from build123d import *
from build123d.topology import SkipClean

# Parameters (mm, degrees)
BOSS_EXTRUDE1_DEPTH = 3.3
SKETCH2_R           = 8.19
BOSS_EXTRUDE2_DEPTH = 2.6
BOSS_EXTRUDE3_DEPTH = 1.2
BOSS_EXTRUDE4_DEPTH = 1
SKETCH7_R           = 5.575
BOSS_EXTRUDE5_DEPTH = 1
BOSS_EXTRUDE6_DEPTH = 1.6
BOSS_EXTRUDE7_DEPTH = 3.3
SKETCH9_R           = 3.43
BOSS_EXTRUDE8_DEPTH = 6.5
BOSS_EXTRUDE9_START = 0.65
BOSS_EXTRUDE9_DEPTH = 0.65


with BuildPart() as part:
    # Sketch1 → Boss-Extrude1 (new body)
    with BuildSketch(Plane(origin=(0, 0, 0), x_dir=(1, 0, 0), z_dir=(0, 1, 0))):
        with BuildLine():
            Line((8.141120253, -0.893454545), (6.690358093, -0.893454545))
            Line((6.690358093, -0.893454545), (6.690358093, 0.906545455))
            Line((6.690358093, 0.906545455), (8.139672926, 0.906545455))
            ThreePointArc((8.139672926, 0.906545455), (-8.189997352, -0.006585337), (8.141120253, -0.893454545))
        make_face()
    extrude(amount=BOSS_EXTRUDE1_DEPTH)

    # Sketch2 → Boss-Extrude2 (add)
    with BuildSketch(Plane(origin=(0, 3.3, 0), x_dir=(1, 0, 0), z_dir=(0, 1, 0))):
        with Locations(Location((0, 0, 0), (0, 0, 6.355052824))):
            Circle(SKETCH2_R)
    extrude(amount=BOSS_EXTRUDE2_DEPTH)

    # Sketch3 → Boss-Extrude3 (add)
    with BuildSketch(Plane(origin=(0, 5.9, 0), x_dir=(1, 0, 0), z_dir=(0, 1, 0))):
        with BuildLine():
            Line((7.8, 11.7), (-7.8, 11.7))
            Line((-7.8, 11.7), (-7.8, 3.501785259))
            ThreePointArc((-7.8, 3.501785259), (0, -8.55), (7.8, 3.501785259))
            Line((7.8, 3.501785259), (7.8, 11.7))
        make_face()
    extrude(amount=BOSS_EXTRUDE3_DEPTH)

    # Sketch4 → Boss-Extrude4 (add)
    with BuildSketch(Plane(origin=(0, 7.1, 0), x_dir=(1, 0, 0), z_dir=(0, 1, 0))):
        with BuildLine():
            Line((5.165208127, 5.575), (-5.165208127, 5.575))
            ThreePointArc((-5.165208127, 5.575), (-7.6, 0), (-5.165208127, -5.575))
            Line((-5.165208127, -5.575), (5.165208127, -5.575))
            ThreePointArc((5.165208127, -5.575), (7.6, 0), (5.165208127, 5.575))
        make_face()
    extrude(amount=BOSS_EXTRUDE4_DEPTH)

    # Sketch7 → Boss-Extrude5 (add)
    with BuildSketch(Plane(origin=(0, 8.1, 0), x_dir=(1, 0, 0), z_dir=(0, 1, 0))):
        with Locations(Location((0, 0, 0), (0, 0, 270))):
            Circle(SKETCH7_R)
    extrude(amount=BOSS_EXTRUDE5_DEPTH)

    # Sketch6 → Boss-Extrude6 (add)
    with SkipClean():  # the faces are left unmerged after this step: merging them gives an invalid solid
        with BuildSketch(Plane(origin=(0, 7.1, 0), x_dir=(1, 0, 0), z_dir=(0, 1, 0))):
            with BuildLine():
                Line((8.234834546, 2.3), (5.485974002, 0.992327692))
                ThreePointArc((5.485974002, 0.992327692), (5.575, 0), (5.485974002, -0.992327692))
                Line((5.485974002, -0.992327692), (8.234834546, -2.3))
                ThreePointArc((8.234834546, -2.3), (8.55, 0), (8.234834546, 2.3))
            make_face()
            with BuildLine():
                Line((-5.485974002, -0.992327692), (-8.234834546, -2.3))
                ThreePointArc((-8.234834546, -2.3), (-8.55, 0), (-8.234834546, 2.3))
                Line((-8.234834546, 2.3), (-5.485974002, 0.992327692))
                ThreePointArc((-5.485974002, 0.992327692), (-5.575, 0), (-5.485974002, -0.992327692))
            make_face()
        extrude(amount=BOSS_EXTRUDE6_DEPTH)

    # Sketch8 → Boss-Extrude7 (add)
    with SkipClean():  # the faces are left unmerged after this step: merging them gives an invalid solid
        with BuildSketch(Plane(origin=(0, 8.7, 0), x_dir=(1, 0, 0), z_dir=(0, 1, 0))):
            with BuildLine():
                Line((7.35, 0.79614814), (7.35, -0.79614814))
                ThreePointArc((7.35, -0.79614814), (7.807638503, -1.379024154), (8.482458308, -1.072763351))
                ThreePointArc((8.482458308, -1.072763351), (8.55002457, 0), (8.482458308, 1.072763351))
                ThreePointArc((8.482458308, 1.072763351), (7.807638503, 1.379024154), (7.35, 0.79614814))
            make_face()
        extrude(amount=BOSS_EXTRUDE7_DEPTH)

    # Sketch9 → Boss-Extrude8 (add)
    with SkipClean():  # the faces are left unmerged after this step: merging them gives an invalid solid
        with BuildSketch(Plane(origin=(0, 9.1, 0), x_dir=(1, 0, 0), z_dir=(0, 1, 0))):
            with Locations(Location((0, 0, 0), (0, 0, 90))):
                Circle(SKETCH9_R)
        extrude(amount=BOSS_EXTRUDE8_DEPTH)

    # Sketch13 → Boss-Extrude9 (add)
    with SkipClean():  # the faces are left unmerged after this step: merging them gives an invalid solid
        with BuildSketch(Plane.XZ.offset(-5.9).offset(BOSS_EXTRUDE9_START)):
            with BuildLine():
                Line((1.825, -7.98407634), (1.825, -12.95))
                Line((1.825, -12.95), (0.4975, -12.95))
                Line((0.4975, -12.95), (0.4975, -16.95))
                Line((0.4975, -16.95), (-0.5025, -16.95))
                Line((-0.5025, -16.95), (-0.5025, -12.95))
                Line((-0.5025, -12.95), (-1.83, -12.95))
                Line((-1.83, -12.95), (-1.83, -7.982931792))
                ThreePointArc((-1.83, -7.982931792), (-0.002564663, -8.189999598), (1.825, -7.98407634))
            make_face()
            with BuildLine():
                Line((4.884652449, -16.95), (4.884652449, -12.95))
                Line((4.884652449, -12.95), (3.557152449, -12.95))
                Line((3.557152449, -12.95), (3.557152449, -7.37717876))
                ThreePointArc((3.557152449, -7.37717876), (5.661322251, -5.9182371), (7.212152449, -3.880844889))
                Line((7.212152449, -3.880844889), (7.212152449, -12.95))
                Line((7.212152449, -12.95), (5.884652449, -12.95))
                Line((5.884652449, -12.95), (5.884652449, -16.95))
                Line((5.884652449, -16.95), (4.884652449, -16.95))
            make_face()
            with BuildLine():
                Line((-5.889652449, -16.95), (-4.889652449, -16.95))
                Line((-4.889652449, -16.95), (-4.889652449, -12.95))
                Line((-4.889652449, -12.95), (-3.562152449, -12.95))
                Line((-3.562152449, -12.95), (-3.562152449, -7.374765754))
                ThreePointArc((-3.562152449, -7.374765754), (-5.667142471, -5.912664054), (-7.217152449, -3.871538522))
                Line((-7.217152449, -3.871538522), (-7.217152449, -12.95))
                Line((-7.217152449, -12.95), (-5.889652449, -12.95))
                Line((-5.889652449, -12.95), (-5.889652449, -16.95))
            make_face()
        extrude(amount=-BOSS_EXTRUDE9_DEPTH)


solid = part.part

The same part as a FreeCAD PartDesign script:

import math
import FreeCAD as App
import Part
import Sketcher

doc = App.newDocument("Part")
body = doc.addObject("PartDesign::Body", "Body")

# Sketch on XZ plane
sketch1 = body.newObject("Sketcher::SketchObject", "Sketch")
sketch1.AttachmentSupport = (doc.getObject("XZ_Plane"), [""])
sketch1.MapMode = "FlatFace"
sketch1.addGeometry([
    Part.LineSegment(App.Vector(8.1, 0.9, 0), App.Vector(6.7, 0.9, 0)),
    Part.LineSegment(App.Vector(6.7, 0.9, 0), App.Vector(6.7, -0.9, 0)),
    Part.LineSegment(App.Vector(6.7, -0.9, 0), App.Vector(8.1, -0.9, 0)),
    Part.ArcOfCircle(Part.Circle(App.Vector(0, 0, 0), App.Vector(0, 0, 1), 8.2), math.radians(6), math.radians(354)),
], False)
sketch1.addConstraint([
    Sketcher.Constraint("Coincident", 0, 2, 1, 1),
    Sketcher.Constraint("Coincident", 1, 2, 2, 1),
    Sketcher.Constraint("Coincident", 2, 2, 3, 2),
    Sketcher.Constraint("Coincident", 3, 1, 0, 1),
    Sketcher.Constraint("Horizontal", 0),
    Sketcher.Constraint("Vertical", 1),
    Sketcher.Constraint("Horizontal", 2),
    Sketcher.Constraint("Coincident", 3, 3, -1, 1),
    Sketcher.Constraint("Radius", 3, 8.19),
    Sketcher.Constraint("DistanceY", 1, 2, 1, 1, 1.8),
    Sketcher.Constraint("DistanceX", 0, 2, 0, 1, 1.450762),
    Sketcher.Constraint("DistanceX", 2, 1, 2, 2, 1.449315),
])
pad1 = body.newObject("PartDesign::Pad", "Pad")
pad1.Profile = sketch1
pad1.Length = 3.3
pad1.Reversed = True

# Sketch on XZ plane
sketch2 = body.newObject("Sketcher::SketchObject", "Sketch001")
sketch2.AttachmentSupport = (doc.getObject("XZ_Plane"), [""])
sketch2.MapMode = "FlatFace"
sketch2.AttachmentOffset = App.Placement(App.Vector(0, 0, -3.3), App.Rotation())
sketch2.addGeometry(Part.Circle(App.Vector(0, 0, 0), App.Vector(0, 0, 1), 8), False)
sketch2.addConstraint([
    Sketcher.Constraint("Coincident", 0, 3, -1, 1),
    Sketcher.Constraint("Diameter", 0, 16.38),
])
pad2 = body.newObject("PartDesign::Pad", "Pad001")
pad2.Profile = sketch2
pad2.Length = 2.6
pad2.Reversed = True

# Sketch on XZ plane
sketch3 = body.newObject("Sketcher::SketchObject", "Sketch002")
sketch3.AttachmentSupport = (doc.getObject("XZ_Plane"), [""])
sketch3.MapMode = "FlatFace"
sketch3.AttachmentOffset = App.Placement(App.Vector(0, 0, -5.9), App.Rotation())
sketch3.addGeometry([
    Part.LineSegment(App.Vector(8, -12, 0), App.Vector(-8, -12, 0)),
    Part.LineSegment(App.Vector(-8, -12, 0), App.Vector(-8, -4, 0)),
    Part.ArcOfCircle(Part.Circle(App.Vector(0, 0, 0), App.Vector(0, 0, 1), 9), math.radians(-24), math.radians(204)),
    Part.LineSegment(App.Vector(8, -4, 0), App.Vector(8, -12, 0)),
], False)
sketch3.addConstraint([
    Sketcher.Constraint("Coincident", 0, 2, 1, 1),
    Sketcher.Constraint("Coincident", 1, 2, 2, 2),
    Sketcher.Constraint("Coincident", 2, 1, 3, 1),
    Sketcher.Constraint("Coincident", 3, 2, 0, 1),
    Sketcher.Constraint("Horizontal", 0),
    Sketcher.Constraint("Vertical", 1),
    Sketcher.Constraint("Vertical", 3),
    Sketcher.Constraint("Coincident", 2, 3, -1, 1),
    Sketcher.Constraint("Horizontal", 1, 2, 2, 1),
    Sketcher.Constraint("Radius", 2, 8.55),
    Sketcher.Constraint("DistanceX", 0, 2, 0, 1, 15.6),
    Sketcher.Constraint("DistanceY", 0, 2, -1, 1, 11.7),
])
pad3 = body.newObject("PartDesign::Pad", "Pad002")
pad3.Profile = sketch3
pad3.Length = 1.2
pad3.Reversed = True

# Sketch on XZ plane
sketch4 = body.newObject("Sketcher::SketchObject", "Sketch003")
sketch4.AttachmentSupport = (doc.getObject("XZ_Plane"), [""])
sketch4.MapMode = "FlatFace"
sketch4.AttachmentOffset = App.Placement(App.Vector(0, 0, -7.1), App.Rotation())
sketch4.addGeometry([
    Part.LineSegment(App.Vector(5, -6, 0), App.Vector(-5, -6, 0)),
    Part.ArcOfCircle(Part.Circle(App.Vector(0, 0, 0), App.Vector(0, 0, 1), 8), math.radians(133), math.radians(227)),
    Part.LineSegment(App.Vector(-5, 6, 0), App.Vector(5, 6, 0)),
    Part.ArcOfCircle(Part.Circle(App.Vector(0, 0, 0), App.Vector(0, 0, 1), 8), math.radians(-47), math.radians(47)),
], False)
sketch4.addConstraint([
    Sketcher.Constraint("Coincident", 0, 2, 1, 2),
    Sketcher.Constraint("Coincident", 1, 1, 2, 1),
    Sketcher.Constraint("Coincident", 2, 2, 3, 2),
    Sketcher.Constraint("Coincident", 3, 1, 0, 1),
    Sketcher.Constraint("Horizontal", 0),
    Sketcher.Constraint("Horizontal", 2),
    Sketcher.Constraint("Coincident", 1, 3, -1, 1),
    Sketcher.Constraint("Coincident", 3, 3, -1, 1),
    Sketcher.Constraint("Equal", 1, 3),
    Sketcher.Constraint("Vertical", 0, 2, 1, 1),
    Sketcher.Constraint("Radius", 1, 7.6),
    Sketcher.Constraint("DistanceY", 0, 2, 1, 1, 11.15),
])
pad4 = body.newObject("PartDesign::Pad", "Pad003")
pad4.Profile = sketch4
pad4.Length = 1
pad4.Reversed = True

# Sketch on XZ plane
sketch5 = body.newObject("Sketcher::SketchObject", "Sketch004")
sketch5.AttachmentSupport = (doc.getObject("XZ_Plane"), [""])
sketch5.MapMode = "FlatFace"
sketch5.AttachmentOffset = App.Placement(App.Vector(0, 0, -8.1), App.Rotation())
sketch5.addGeometry(Part.Circle(App.Vector(0, 0, 0), App.Vector(0, 0, 1), 6), False)
sketch5.addConstraint([
    Sketcher.Constraint("Coincident", 0, 3, -1, 1),
    Sketcher.Constraint("Diameter", 0, 11.15),
])
pad5 = body.newObject("PartDesign::Pad", "Pad004")
pad5.Profile = sketch5
pad5.Length = 1
pad5.Reversed = True

# Sketch on XZ plane
sketch6 = body.newObject("Sketcher::SketchObject", "Sketch005")
sketch6.AttachmentSupport = (doc.getObject("XZ_Plane"), [""])
sketch6.MapMode = "FlatFace"
sketch6.AttachmentOffset = App.Placement(App.Vector(0, 0, -7.1), App.Rotation())
sketch6.addGeometry([
    Part.LineSegment(App.Vector(8.2, -2.3, 0), App.Vector(5.5, -1, 0)),  # 0
    Part.ArcOfCircle(Part.Circle(App.Vector(0, 0, 0), App.Vector(0, 0, 1), 5.6), math.radians(-10), math.radians(10)),  # 1
    Part.LineSegment(App.Vector(5.5, 1, 0), App.Vector(8.2, 2.3, 0)),  # 2
    Part.ArcOfCircle(Part.Circle(App.Vector(0, 0, 0), App.Vector(0, 0, 1), 8.6), math.radians(-16), math.radians(16)),  # 3
    Part.LineSegment(App.Vector(-8.2, 2.3, 0), App.Vector(-5.5, 1, 0)),  # 4
    Part.ArcOfCircle(Part.Circle(App.Vector(0, 0, 0), App.Vector(0, 0, 1), 5.6), math.radians(170), math.radians(190)),  # 5
    Part.LineSegment(App.Vector(-5.5, -1, 0), App.Vector(-8.2, -2.3, 0)),  # 6
    Part.ArcOfCircle(Part.Circle(App.Vector(0, 0, 0), App.Vector(0, 0, 1), 8.6), math.radians(164), math.radians(196)),  # 7
], False)
sketch6.addConstraint([
    Sketcher.Constraint("Coincident", 0, 2, 1, 1),
    Sketcher.Constraint("Coincident", 1, 2, 2, 1),
    Sketcher.Constraint("Coincident", 2, 2, 3, 2),
    Sketcher.Constraint("Coincident", 3, 1, 0, 1),
    Sketcher.Constraint("Coincident", 4, 2, 5, 1),
    Sketcher.Constraint("Coincident", 5, 2, 6, 1),
    Sketcher.Constraint("Coincident", 6, 2, 7, 2),
    Sketcher.Constraint("Coincident", 7, 1, 4, 1),
    Sketcher.Constraint("Coincident", 1, 3, -1, 1),
    Sketcher.Constraint("Coincident", 3, 3, -1, 1),
    Sketcher.Constraint("Coincident", 5, 3, -1, 1),
    Sketcher.Constraint("Coincident", 7, 3, -1, 1),
    Sketcher.Constraint("Equal", 1, 5),
    Sketcher.Constraint("Equal", 3, 7),
    Sketcher.Constraint("Parallel", 0, 4),
    Sketcher.Constraint("Parallel", 2, 6),
    Sketcher.Constraint("Horizontal", 1, 2, 4, 2),
    Sketcher.Constraint("Horizontal", 0, 2, 5, 2),
    Sketcher.Constraint("Horizontal", 3, 1, 6, 2),
    Sketcher.Constraint("Vertical", 0, 2, 1, 2),
    Sketcher.Constraint("Radius", 3, 8.55),
    Sketcher.Constraint("Radius", 1, 5.575),
    Sketcher.Constraint("DistanceY", -1, 1, 2, 2, 2.3),
    Sketcher.Constraint("Distance", 0, 3.04405),
])
pad6 = body.newObject("PartDesign::Pad", "Pad005")
pad6.Profile = sketch6
pad6.Length = 1.6
pad6.Reversed = True

# Sketch on XZ plane
sketch7 = body.newObject("Sketcher::SketchObject", "Sketch006")
sketch7.AttachmentSupport = (doc.getObject("XZ_Plane"), [""])
sketch7.MapMode = "FlatFace"
sketch7.AttachmentOffset = App.Placement(App.Vector(0, 0, -8.7), App.Rotation())
sketch7.addGeometry([
    Part.LineSegment(App.Vector(7.3, -0.8, 0), App.Vector(7.3, 0.8, 0)),
    Part.ArcOfCircle(Part.Circle(App.Vector(8, 0.8, 0), App.Vector(0, 0, 1), 0.6), math.radians(27), math.radians(180)),
    Part.ArcOfCircle(Part.Circle(App.Vector(0, 0, 0), App.Vector(0, 0, 1), 8.6), math.radians(-7.21), math.radians(7.21)),
    Part.ArcOfCircle(Part.Circle(App.Vector(8, -0.8, 0), App.Vector(0, 0, 1), 0.6), math.radians(-180), math.radians(-27)),
], False)
sketch7.addConstraint([
    Sketcher.Constraint("Tangent", 0, 2, 1, 2),
    Sketcher.Constraint("Coincident", 1, 1, 2, 2),
    Sketcher.Constraint("Coincident", 2, 1, 3, 2),
    Sketcher.Constraint("Tangent", 3, 1, 0, 1),
    Sketcher.Constraint("Vertical", 0),
    Sketcher.Constraint("Coincident", 2, 3, -1, 1),
    Sketcher.Constraint("Equal", 1, 3),
    Sketcher.Constraint("Vertical", 1, 1, 2, 1),
    Sketcher.Constraint("DistanceX", -1, 1, 0, 2, 7.35),
    Sketcher.Constraint("Radius", 1, 0.600012),
    Sketcher.Constraint("Radius", 2, 8.550025),
    Sketcher.Constraint("DistanceY", 0, 1, 0, 2, 1.592296),
])
pad7 = body.newObject("PartDesign::Pad", "Pad006")
pad7.Profile = sketch7
pad7.Length = 3.3
pad7.Reversed = True

# Sketch on XZ plane
sketch8 = body.newObject("Sketcher::SketchObject", "Sketch007")
sketch8.AttachmentSupport = (doc.getObject("XZ_Plane"), [""])
sketch8.MapMode = "FlatFace"
sketch8.AttachmentOffset = App.Placement(App.Vector(0, 0, -9.1), App.Rotation())
sketch8.addGeometry(Part.Circle(App.Vector(0, 0, 0), App.Vector(0, 0, 1), 3.4), False)
sketch8.addConstraint([
    Sketcher.Constraint("Coincident", 0, 3, -1, 1),
    Sketcher.Constraint("Diameter", 0, 6.86),
])
pad8 = body.newObject("PartDesign::Pad", "Pad007")
pad8.Profile = sketch8
pad8.Length = 6.5
pad8.Reversed = True

# Sketch on XZ plane
sketch9 = body.newObject("Sketcher::SketchObject", "Sketch008")
sketch9.AttachmentSupport = (doc.getObject("XZ_Plane"), [""])
sketch9.MapMode = "FlatFace"
sketch9.AttachmentOffset = App.Placement(App.Vector(0, 0, -5.25), App.Rotation())
sketch9.addGeometry([
    Part.LineSegment(App.Vector(1.8, -12.9, 0), App.Vector(1.8, -8, 0)),  # 0
    Part.ArcOfCircle(Part.Circle(App.Vector(0, 0, 0), App.Vector(0, 0, 1), 8.2), math.radians(-103), math.radians(-77)),  # 1
    Part.LineSegment(App.Vector(-1.8, -8, 0), App.Vector(-1.8, -12.9, 0)),  # 2
    Part.LineSegment(App.Vector(-1.8, -12.9, 0), App.Vector(-0.5, -12.9, 0)),  # 3
    Part.LineSegment(App.Vector(-0.5, -12.9, 0), App.Vector(-0.5, -16.9, 0)),  # 4
    Part.LineSegment(App.Vector(-0.5, -16.9, 0), App.Vector(0.5, -16.9, 0)),  # 5
    Part.LineSegment(App.Vector(0.5, -16.9, 0), App.Vector(0.5, -12.9, 0)),  # 6
    Part.LineSegment(App.Vector(0.5, -12.9, 0), App.Vector(1.8, -12.9, 0)),  # 7
    Part.LineSegment(App.Vector(4.9, -12.9, 0), App.Vector(4.9, -16.9, 0)),  # 8
    Part.LineSegment(App.Vector(4.9, -16.9, 0), App.Vector(5.9, -16.9, 0)),  # 9
    Part.LineSegment(App.Vector(5.9, -16.9, 0), App.Vector(5.9, -12.9, 0)),  # 10
    Part.LineSegment(App.Vector(5.9, -12.9, 0), App.Vector(7.2, -12.9, 0)),  # 11
    Part.LineSegment(App.Vector(7.2, -12.9, 0), App.Vector(7.2, -3.9, 0)),  # 12
    Part.ArcOfCircle(Part.Circle(App.Vector(0, 0, 0), App.Vector(0, 0, 1), 8.2), math.radians(-64), math.radians(-28)),  # 13
    Part.LineSegment(App.Vector(3.6, -7.4, 0), App.Vector(3.6, -12.9, 0)),  # 14
    Part.LineSegment(App.Vector(3.6, -12.9, 0), App.Vector(4.9, -12.9, 0)),  # 15
    Part.LineSegment(App.Vector(-5.9, -16.9, 0), App.Vector(-4.9, -16.9, 0)),  # 16
    Part.LineSegment(App.Vector(-4.9, -16.9, 0), App.Vector(-4.9, -12.9, 0)),  # 17
    Part.LineSegment(App.Vector(-4.9, -12.9, 0), App.Vector(-3.6, -12.9, 0)),  # 18
    Part.LineSegment(App.Vector(-3.6, -12.9, 0), App.Vector(-3.6, -7.4, 0)),  # 19
    Part.ArcOfCircle(Part.Circle(App.Vector(0, 0, 0), App.Vector(0, 0, 1), 8.2), math.radians(-152), math.radians(-116)),  # 20
    Part.LineSegment(App.Vector(-7.2, -3.9, 0), App.Vector(-7.2, -12.9, 0)),  # 21
    Part.LineSegment(App.Vector(-7.2, -12.9, 0), App.Vector(-5.9, -12.9, 0)),  # 22
    Part.LineSegment(App.Vector(-5.9, -12.9, 0), App.Vector(-5.9, -16.9, 0)),  # 23
], False)
sketch9.addConstraint([
    Sketcher.Constraint("Coincident", 0, 2, 1, 2),
    Sketcher.Constraint("Coincident", 1, 1, 2, 1),
    Sketcher.Constraint("Coincident", 2, 2, 3, 1),
    Sketcher.Constraint("Coincident", 3, 2, 4, 1),
    Sketcher.Constraint("Coincident", 4, 2, 5, 1),
    Sketcher.Constraint("Coincident", 5, 2, 6, 1),
    Sketcher.Constraint("Coincident", 6, 2, 7, 1),
    Sketcher.Constraint("Coincident", 7, 2, 0, 1),
    Sketcher.Constraint("Coincident", 8, 2, 9, 1),
    Sketcher.Constraint("Coincident", 9, 2, 10, 1),
    Sketcher.Constraint("Coincident", 10, 2, 11, 1),
    Sketcher.Constraint("Coincident", 11, 2, 12, 1),
    Sketcher.Constraint("Coincident", 12, 2, 13, 2),
    Sketcher.Constraint("Coincident", 13, 1, 14, 1),
    Sketcher.Constraint("Coincident", 14, 2, 15, 1),
    Sketcher.Constraint("Coincident", 15, 2, 8, 1),
    Sketcher.Constraint("Coincident", 16, 2, 17, 1),
    Sketcher.Constraint("Coincident", 17, 2, 18, 1),
    Sketcher.Constraint("Coincident", 18, 2, 19, 1),
    Sketcher.Constraint("Coincident", 19, 2, 20, 2),
    Sketcher.Constraint("Coincident", 20, 1, 21, 1),
    Sketcher.Constraint("Coincident", 21, 2, 22, 1),
    Sketcher.Constraint("Coincident", 22, 2, 23, 1),
    Sketcher.Constraint("Coincident", 23, 2, 16, 1),
    Sketcher.Constraint("Vertical", 0),
    Sketcher.Constraint("Vertical", 2),
    Sketcher.Constraint("Horizontal", 3),
    Sketcher.Constraint("Vertical", 4),
    Sketcher.Constraint("Horizontal", 5),
    Sketcher.Constraint("Vertical", 6),
    Sketcher.Constraint("Horizontal", 7),
    Sketcher.Constraint("Vertical", 8),
    Sketcher.Constraint("Horizontal", 9),
    Sketcher.Constraint("Vertical", 10),
    Sketcher.Constraint("Horizontal", 11),
    Sketcher.Constraint("Vertical", 12),
    Sketcher.Constraint("Vertical", 14),
    Sketcher.Constraint("Horizontal", 15),
    Sketcher.Constraint("Horizontal", 16),
    Sketcher.Constraint("Vertical", 17),
    Sketcher.Constraint("Horizontal", 18),
    Sketcher.Constraint("Vertical", 19),
    Sketcher.Constraint("Vertical", 21),
    Sketcher.Constraint("Horizontal", 22),
    Sketcher.Constraint("Vertical", 23),
    Sketcher.Constraint("Coincident", 1, 3, -1, 1),
    Sketcher.Constraint("Coincident", 13, 3, -1, 1),
    Sketcher.Constraint("Coincident", 20, 3, -1, 1),
    Sketcher.Constraint("Equal", 1, 13),
    Sketcher.Constraint("Equal", 13, 20),
    Sketcher.Constraint("Horizontal", 3, 2, 6, 2),
    Sketcher.Constraint("Horizontal", 5, 2, 8, 2),
    Sketcher.Constraint("Horizontal", 7, 2, 10, 2),
    Sketcher.Constraint("Horizontal", 11, 2, 14, 2),
    Sketcher.Constraint("Horizontal", 9, 2, 16, 2),
    Sketcher.Constraint("Horizontal", 15, 2, 17, 2),
    Sketcher.Constraint("Horizontal", 18, 2, 21, 2),
    Sketcher.Constraint("Equal", 3, 7),
    Sketcher.Constraint("Equal", 5, 9),
    Sketcher.Constraint("Equal", 7, 11),
    Sketcher.Constraint("Equal", 11, 15),
    Sketcher.Constraint("Equal", 9, 16),
    Sketcher.Constraint("Equal", 15, 18),
    Sketcher.Constraint("Equal", 18, 22),
    Sketcher.Constraint("DistanceX", 5, 1, 5, 2, 1.0),
    Sketcher.Constraint("DistanceY", 4, 2, 4, 1, 4.0),
    Sketcher.Constraint("Radius", 1, 8.19),
    Sketcher.Constraint("DistanceX", 1, 1, -1, 1, 1.83),
    Sketcher.Constraint("DistanceY", 2, 2, -1, 1, 12.95),
    Sketcher.Constraint("DistanceX", 3, 1, 3, 2, 1.3275),
    Sketcher.Constraint("DistanceY", 14, 2, 14, 1, 5.572821),
    Sketcher.Constraint("DistanceY", 21, 2, 21, 1, 9.078461),
])
pad9 = body.newObject("PartDesign::Pad", "Pad008")
pad9.Profile = sketch9
pad9.Length = 0.65
pad9.Reversed = True

doc.recompute()
